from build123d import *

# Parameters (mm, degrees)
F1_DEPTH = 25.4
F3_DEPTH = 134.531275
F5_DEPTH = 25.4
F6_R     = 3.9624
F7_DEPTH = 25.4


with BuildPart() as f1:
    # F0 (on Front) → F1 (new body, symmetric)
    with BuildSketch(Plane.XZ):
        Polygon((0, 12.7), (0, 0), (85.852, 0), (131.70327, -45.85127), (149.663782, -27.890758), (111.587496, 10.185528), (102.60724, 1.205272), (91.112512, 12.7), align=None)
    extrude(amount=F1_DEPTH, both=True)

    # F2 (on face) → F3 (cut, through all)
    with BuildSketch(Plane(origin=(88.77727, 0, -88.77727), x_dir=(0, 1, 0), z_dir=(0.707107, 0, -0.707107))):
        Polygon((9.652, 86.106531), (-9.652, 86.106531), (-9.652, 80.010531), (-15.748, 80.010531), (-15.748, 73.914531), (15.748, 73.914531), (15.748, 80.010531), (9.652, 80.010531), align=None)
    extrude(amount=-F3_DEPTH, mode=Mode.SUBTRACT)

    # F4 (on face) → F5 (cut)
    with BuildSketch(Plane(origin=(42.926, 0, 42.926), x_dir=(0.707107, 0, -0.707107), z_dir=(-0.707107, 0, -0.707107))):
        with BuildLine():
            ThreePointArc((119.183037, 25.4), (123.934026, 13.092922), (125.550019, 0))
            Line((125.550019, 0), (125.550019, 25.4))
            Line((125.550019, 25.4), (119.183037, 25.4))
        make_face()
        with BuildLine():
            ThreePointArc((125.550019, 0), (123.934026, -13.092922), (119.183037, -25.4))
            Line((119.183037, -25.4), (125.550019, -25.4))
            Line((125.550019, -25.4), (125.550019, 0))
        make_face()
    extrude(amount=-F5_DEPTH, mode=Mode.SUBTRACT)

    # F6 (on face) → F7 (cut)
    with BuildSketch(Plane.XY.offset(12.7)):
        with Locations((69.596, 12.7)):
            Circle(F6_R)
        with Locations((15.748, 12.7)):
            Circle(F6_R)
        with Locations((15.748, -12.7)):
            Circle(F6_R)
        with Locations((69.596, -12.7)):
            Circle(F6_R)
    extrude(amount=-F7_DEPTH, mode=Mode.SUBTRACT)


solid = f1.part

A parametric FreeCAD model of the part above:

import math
import FreeCAD as App
import Part
import Sketcher
Q = App.Units.Quantity

doc = App.newDocument("Part")
body = doc.addObject("PartDesign::Body", "Body")

sketch1 = body.newObject("Sketcher::SketchObject", "Sketch")
sketch1.AttachmentSupport = (doc.getObject("XZ_Plane"), [""])
sketch1.MapMode = "FlatFace"
sketch1.addGeometry([
    Part.LineSegment(App.Vector(0, 13, 0), App.Vector(0, 0, 0)),
    Part.LineSegment(App.Vector(0, 0, 0), App.Vector(86, 0, 0)),
    Part.LineSegment(App.Vector(86, 0, 0), App.Vector(132, -46, 0)),
    Part.LineSegment(App.Vector(132, -46, 0), App.Vector(150, -28, 0)),
    Part.LineSegment(App.Vector(150, -28, 0), App.Vector(112, 10, 0)),
    Part.LineSegment(App.Vector(112, 10, 0), App.Vector(103, 1, 0)),
    Part.LineSegment(App.Vector(103, 1, 0), App.Vector(91, 13, 0)),
    Part.LineSegment(App.Vector(91, 13, 0), App.Vector(0, 13, 0)),
], False)
sketch1.addConstraint([
    Sketcher.Constraint("Coincident", 0, 2, 1, 1),
    Sketcher.Constraint("Coincident", 1, 2, 2, 1),
    Sketcher.Constraint("Coincident", 2, 2, 3, 1),
    Sketcher.Constraint("Coincident", 3, 2, 4, 1),
    Sketcher.Constraint("Coincident", 4, 2, 5, 1),
    Sketcher.Constraint("Coincident", 5, 2, 6, 1),
    Sketcher.Constraint("Coincident", 6, 2, 7, 1),
    Sketcher.Constraint("Coincident", 7, 2, 0, 1),
    Sketcher.Constraint("Vertical", 0),
    Sketcher.Constraint("Horizontal", 1),
    Sketcher.Constraint("Horizontal", 7),
    Sketcher.Constraint("Coincident", 0, 2, -1, 1),
    Sketcher.Constraint("Perpendicular", 2, 3),
    Sketcher.Constraint("Perpendicular", 3, 4),
    Sketcher.Constraint("Perpendicular", 4, 5),
    Sketcher.Constraint("Perpendicular", 5, 6),
    Sketcher.Constraint("Distance", 3, Q("1 in")),
    Sketcher.Constraint("DistanceY", 0, 2, 0, 1, Q("0.5 in")),
    Sketcher.Constraint("Angle", 2, Q("-45 deg")),
    Sketcher.Constraint("Distance", 5, Q("0.5 in")),
    Sketcher.Constraint("DistanceX", 1, 1, 1, 2, Q("3.38 in")),
    Sketcher.Constraint("Distance", 4, Q("2.12 in")),
    Sketcher.Constraint("Distance", 6, Q("0.64 in")),
])
pad1 = body.newObject("PartDesign::Pad", "Pad")
pad1.Profile = sketch1
pad1.Length = Q("2 in")
pad1.Midplane = True

sketch2 = body.newObject("Sketcher::SketchObject", "Sketch001")
sketch2.Placement = App.Placement(App.Vector(88.77727, 0, -88.77727), App.Rotation(App.Vector(0, 1, 0), App.Vector(0.707106781, 0, 0.707106781), App.Vector(0.707106781, 0, -0.707106781), "ZXY"))
sketch2.addGeometry([
    Part.LineSegment(App.Vector(10, 86, 0), App.Vector(-10, 86, 0)),
    Part.LineSegment(App.Vector(-10, 86, 0), App.Vector(-10, 80, 0)),
    Part.LineSegment(App.Vector(-10, 80, 0), App.Vector(-16, 80, 0)),
    Part.LineSegment(App.Vector(-16, 80, 0), App.Vector(-16, 74, 0)),
    Part.LineSegment(App.Vector(-16, 74, 0), App.Vector(16, 74, 0)),
    Part.LineSegment(App.Vector(16, 74, 0), App.Vector(16, 80, 0)),
    Part.LineSegment(App.Vector(16, 80, 0), App.Vector(10, 80, 0)),
    Part.LineSegment(App.Vector(10, 80, 0), App.Vector(10, 86, 0)),
], False)
sketch2.addConstraint([
    Sketcher.Constraint("Coincident", 0, 2, 1, 1),
    Sketcher.Constraint("Coincident", 1, 2, 2, 1),
    Sketcher.Constraint("Coincident", 2, 2, 3, 1),
    Sketcher.Constraint("Coincident", 3, 2, 4, 1),
    Sketcher.Constraint("Coincident", 4, 2, 5, 1),
    Sketcher.Constraint("Coincident", 5, 2, 6, 1),
    Sketcher.Constraint("Coincident", 6, 2, 7, 1),
    Sketcher.Constraint("Coincident", 7, 2, 0, 1),
    Sketcher.Constraint("Horizontal", 0),
    Sketcher.Constraint("Vertical", 1),
    Sketcher.Constraint("Horizontal", 2),
    Sketcher.Constraint("Vertical", 3),
    Sketcher.Constraint("Horizontal", 4),
    Sketcher.Constraint("Vertical", 5),
    Sketcher.Constraint("Horizontal", 6),
    Sketcher.Constraint("Vertical", 7),
    Sketcher.Constraint("Symmetric", 2, 2, 5, 2, -2),
    Sketcher.Constraint("Equal", 2, 6),
    Sketcher.Constraint("Equal", 6, 1),
    Sketcher.Constraint("Equal", 1, 3),
    Sketcher.Constraint("DistanceX", 1, 2, 4, 2, Q("1 in")),
    Sketcher.Constraint("DistanceX", 0, 2, 0, 1, Q("0.76 in")),
    Sketcher.Constraint("DistanceY", -1, 1, 0, 2, Q("86.106531 mm")),
])
pocket1 = body.newObject("PartDesign::Pocket", "Pocket")
pocket1.Profile = sketch2
pocket1.Type = "ThroughAll"

sketch3 = body.newObject("Sketcher::SketchObject", "Sketch002")
sketch3.Placement = App.Placement(App.Vector(42.926, 0, 42.926), App.Rotation(App.Vector(0.707106781, 0, -0.707106781), App.Vector(0, -0.999999999, 0), App.Vector(-0.707106781, 0, -0.707106781), "ZXY"))
sketch3.addGeometry([
    Part.ArcOfCircle(Part.Circle(App.Vector(72, 0, 0), App.Vector(0, 0, 1), 54), math.radians(0), math.radians(28)),
    Part.LineSegment(App.Vector(126, 0, 0), App.Vector(126, 25, 0)),
    Part.LineSegment(App.Vector(126, 25, 0), App.Vector(119, 25, 0)),
    Part.ArcOfCircle(Part.Circle(App.Vector(72, 0, 0), App.Vector(0, 0, 1), 54), math.radians(-28), math.radians(0)),
    Part.LineSegment(App.Vector(119, -25, 0), App.Vector(126, -25, 0)),
    Part.LineSegment(App.Vector(126, -25, 0), App.Vector(126, 0, 0)),
], False)
sketch3.addConstraint([
    Sketcher.Constraint("Tangent", 0, 1, 1, 1),
    Sketcher.Constraint("Coincident", 1, 2, 2, 1),
    Sketcher.Constraint("Coincident", 2, 2, 0, 2),
    Sketcher.Constraint("Coincident", 3, 1, 4, 1),
    Sketcher.Constraint("Coincident", 4, 2, 5, 1),
    Sketcher.Constraint("Tangent", 5, 2, 3, 2),
    Sketcher.Constraint("Vertical", 1),
    Sketcher.Constraint("Horizontal", 2),
    Sketcher.Constraint("Horizontal", 4),
    Sketcher.Constraint("Vertical", 5),
    Sketcher.Constraint("Coincident", 3, 3, 0, 3),
    Sketcher.Constraint("Equal", 0, 3),
    Sketcher.Constraint("Symmetric", 2, 2, 3, 1, -1),
    Sketcher.Constraint("DistanceY", 1, 1, 1, 2, Q("1 in")),
    Sketcher.Constraint("Radius", 0, Q("53.847977 mm")),
    Sketcher.Constraint("DistanceX", -1, 1, 0, 3, Q("71.702042 mm")),
])
pocket2 = body.newObject("PartDesign::Pocket", "Pocket001")
pocket2.Profile = sketch3
pocket2.Length = Q("1 in")

sketch4 = body.newObject("Sketcher::SketchObject", "Sketch003")
sketch4.AttachmentSupport = (doc.getObject("XY_Plane"), [""])
sketch4.MapMode = "FlatFace"
sketch4.AttachmentOffset = App.Placement(App.Vector(0, 0, 0.5 * 25.4), App.Rotation())
sketch4.addGeometry([
    Part.Circle(App.Vector(69.6, 12.7, 0), App.Vector(0, 0, 1), 4),
    Part.Circle(App.Vector(15.7, 12.7, 0), App.Vector(0, 0, 1), 4),
    Part.Circle(App.Vector(15.7, -12.7, 0), App.Vector(0, 0, 1), 4),
    Part.Circle(App.Vector(69.6, -12.7, 0), App.Vector(0, 0, 1), 4),
], False)
sketch4.addConstraint([
    Sketcher.Constraint("Equal", 0, 1),
    Sketcher.Constraint("Equal", 1, 2),
    Sketcher.Constraint("Equal", 2, 3),
    Sketcher.Constraint("Symmetric", 1, 3, 2, 3, -1),
    Sketcher.Constraint("Symmetric", 0, 3, 3, 3, -1),
    Sketcher.Constraint("Horizontal", 0, 3, 1, 3),
    Sketcher.Constraint("Diameter", 0, Q("0.312 in")),
    Sketcher.Constraint("DistanceY", 2, 3, 1, 3, Q("1 in")),
    Sketcher.Constraint("DistanceX", -1, 1, 0, 3, Q("2.74 in")),
    Sketcher.Constraint("DistanceX", -1, 1, 1, 3, Q("0.62 in")),
])
pocket3 = body.newObject("PartDesign::Pocket", "Pocket002")
pocket3.Profile = sketch4
pocket3.Length = Q("1 in")

doc.recompute()
